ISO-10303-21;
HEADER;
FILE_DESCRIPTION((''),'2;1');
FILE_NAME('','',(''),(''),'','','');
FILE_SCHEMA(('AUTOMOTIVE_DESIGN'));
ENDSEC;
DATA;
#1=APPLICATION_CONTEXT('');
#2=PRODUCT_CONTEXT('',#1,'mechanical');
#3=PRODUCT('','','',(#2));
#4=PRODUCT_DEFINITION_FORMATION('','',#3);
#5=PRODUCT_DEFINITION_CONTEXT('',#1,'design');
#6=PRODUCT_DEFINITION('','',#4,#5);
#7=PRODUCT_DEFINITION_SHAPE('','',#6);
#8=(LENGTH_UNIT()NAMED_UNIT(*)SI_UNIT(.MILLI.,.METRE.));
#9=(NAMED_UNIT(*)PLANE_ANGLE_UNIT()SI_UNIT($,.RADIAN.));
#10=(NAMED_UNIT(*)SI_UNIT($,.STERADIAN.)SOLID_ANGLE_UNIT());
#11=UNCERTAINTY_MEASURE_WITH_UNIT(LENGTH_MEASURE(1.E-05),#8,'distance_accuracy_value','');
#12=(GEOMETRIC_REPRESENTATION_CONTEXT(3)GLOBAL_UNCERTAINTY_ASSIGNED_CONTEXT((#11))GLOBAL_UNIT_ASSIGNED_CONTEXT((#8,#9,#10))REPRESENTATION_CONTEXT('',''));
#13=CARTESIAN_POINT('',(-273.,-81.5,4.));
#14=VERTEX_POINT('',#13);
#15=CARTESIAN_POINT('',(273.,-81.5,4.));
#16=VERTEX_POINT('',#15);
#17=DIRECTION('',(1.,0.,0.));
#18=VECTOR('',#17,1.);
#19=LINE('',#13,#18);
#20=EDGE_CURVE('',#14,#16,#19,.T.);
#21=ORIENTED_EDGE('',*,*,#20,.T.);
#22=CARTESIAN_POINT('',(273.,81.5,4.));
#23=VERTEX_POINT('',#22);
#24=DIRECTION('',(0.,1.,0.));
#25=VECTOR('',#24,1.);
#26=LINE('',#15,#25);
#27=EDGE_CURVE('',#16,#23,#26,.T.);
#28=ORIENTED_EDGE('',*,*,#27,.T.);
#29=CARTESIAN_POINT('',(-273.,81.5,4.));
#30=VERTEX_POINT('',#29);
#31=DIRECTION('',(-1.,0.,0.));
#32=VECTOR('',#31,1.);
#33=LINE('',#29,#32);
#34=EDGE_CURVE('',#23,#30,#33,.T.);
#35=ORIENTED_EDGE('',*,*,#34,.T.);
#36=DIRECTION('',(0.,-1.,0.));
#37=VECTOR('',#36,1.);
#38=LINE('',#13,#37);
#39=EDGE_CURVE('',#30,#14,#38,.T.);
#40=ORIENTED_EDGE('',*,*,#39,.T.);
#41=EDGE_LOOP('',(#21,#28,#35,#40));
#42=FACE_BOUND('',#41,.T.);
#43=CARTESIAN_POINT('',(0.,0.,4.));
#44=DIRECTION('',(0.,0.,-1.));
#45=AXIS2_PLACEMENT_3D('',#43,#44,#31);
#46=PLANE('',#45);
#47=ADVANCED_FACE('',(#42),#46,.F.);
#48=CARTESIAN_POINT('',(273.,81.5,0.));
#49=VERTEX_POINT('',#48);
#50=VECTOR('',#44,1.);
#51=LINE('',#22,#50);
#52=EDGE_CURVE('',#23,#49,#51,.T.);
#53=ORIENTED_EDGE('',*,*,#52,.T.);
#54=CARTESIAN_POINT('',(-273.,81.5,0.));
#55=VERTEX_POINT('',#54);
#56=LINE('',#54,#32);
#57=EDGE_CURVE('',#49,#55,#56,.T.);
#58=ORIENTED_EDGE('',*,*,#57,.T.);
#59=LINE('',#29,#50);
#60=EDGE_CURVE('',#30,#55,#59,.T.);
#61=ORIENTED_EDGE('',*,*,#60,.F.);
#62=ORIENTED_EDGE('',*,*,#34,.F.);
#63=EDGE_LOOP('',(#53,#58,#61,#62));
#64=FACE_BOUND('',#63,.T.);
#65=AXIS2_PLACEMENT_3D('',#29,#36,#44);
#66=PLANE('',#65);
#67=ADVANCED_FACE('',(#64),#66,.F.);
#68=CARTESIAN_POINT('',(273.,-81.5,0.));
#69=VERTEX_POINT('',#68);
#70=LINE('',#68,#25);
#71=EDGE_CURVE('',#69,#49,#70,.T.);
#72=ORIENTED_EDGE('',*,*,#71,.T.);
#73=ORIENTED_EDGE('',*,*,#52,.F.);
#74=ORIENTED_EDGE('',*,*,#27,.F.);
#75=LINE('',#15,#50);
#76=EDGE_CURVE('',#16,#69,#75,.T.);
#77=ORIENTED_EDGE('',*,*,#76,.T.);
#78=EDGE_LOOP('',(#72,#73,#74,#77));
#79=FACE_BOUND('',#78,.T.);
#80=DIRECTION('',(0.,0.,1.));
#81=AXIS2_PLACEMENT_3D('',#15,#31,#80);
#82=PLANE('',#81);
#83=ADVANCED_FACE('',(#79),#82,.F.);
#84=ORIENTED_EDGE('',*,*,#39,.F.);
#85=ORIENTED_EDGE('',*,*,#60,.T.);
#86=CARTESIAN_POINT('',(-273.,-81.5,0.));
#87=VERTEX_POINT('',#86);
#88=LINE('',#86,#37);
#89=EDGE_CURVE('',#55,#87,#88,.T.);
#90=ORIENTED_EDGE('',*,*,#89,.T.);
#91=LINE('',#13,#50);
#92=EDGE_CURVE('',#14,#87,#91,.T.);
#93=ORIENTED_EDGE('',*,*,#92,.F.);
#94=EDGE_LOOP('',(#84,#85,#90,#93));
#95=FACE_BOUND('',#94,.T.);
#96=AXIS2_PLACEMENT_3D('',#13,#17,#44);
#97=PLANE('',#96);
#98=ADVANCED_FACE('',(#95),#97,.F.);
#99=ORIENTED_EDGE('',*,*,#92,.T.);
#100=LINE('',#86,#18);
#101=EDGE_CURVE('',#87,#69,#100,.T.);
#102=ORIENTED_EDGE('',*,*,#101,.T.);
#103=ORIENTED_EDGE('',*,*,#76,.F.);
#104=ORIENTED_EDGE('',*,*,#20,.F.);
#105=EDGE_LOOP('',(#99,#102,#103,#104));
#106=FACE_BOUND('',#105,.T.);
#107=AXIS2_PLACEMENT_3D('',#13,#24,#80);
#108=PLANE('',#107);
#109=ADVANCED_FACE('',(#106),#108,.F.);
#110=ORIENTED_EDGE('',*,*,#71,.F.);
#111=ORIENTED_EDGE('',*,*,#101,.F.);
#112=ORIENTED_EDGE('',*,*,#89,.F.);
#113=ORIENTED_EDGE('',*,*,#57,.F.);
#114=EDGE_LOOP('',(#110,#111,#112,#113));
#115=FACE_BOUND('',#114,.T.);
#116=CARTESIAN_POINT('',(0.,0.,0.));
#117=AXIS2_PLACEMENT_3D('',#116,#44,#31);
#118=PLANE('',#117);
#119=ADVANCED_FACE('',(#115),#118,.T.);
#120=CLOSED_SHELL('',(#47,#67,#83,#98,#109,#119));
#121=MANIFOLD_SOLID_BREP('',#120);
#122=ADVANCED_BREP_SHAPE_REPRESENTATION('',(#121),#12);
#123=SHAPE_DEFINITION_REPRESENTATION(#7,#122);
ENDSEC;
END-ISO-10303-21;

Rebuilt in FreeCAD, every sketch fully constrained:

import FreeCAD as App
import Part
import Sketcher
from FreeCAD import Vector


def add_polygon(sketch, points):
    """Adds a closed chain of lines whose ends are joined by coincident constraints."""
    first, n = sketch.GeometryCount, len(points)
    for a, b in zip(points, points[1:] + points[:1]):
        sketch.addGeometry(Part.LineSegment(App.Vector(*a, 0), App.Vector(*b, 0)), False)
    for i in range(n):
        sketch.addConstraint(Sketcher.Constraint("Coincident", first + i, 2, first + (i + 1) % n, 1))

doc = App.newDocument("Part")
body = doc.addObject("PartDesign::Body", "Body")

sketch1 = doc.addObject("Sketcher::SketchObject", "Sketch")
body.addObject(sketch1)
sketch1.AttachmentSupport = (doc.XY_Plane, [""])
sketch1.MapMode = "FlatFace"
add_polygon(sketch1, [(-273, 81.5), (-273, -81.5), (273, -81.5), (273, 81.5)])
sketch1.addConstraint([
    Sketcher.Constraint("Vertical", 0),
    Sketcher.Constraint("Horizontal", 1),
    Sketcher.Constraint("Vertical", 2),
    Sketcher.Constraint("Horizontal", 3),
    Sketcher.Constraint("Symmetric", 0, 2, 2, 2, -1, 1),
    Sketcher.Constraint("DistanceX", 1, 1, 1, 2, 546.0),
    Sketcher.Constraint("DistanceY", 0, 2, 0, 1, 163.0),
])
pad1 = doc.addObject("PartDesign::Pad", "Pad")
body.addObject(pad1)
pad1.Profile = sketch1
pad1.Length = 4

doc.recompute()
